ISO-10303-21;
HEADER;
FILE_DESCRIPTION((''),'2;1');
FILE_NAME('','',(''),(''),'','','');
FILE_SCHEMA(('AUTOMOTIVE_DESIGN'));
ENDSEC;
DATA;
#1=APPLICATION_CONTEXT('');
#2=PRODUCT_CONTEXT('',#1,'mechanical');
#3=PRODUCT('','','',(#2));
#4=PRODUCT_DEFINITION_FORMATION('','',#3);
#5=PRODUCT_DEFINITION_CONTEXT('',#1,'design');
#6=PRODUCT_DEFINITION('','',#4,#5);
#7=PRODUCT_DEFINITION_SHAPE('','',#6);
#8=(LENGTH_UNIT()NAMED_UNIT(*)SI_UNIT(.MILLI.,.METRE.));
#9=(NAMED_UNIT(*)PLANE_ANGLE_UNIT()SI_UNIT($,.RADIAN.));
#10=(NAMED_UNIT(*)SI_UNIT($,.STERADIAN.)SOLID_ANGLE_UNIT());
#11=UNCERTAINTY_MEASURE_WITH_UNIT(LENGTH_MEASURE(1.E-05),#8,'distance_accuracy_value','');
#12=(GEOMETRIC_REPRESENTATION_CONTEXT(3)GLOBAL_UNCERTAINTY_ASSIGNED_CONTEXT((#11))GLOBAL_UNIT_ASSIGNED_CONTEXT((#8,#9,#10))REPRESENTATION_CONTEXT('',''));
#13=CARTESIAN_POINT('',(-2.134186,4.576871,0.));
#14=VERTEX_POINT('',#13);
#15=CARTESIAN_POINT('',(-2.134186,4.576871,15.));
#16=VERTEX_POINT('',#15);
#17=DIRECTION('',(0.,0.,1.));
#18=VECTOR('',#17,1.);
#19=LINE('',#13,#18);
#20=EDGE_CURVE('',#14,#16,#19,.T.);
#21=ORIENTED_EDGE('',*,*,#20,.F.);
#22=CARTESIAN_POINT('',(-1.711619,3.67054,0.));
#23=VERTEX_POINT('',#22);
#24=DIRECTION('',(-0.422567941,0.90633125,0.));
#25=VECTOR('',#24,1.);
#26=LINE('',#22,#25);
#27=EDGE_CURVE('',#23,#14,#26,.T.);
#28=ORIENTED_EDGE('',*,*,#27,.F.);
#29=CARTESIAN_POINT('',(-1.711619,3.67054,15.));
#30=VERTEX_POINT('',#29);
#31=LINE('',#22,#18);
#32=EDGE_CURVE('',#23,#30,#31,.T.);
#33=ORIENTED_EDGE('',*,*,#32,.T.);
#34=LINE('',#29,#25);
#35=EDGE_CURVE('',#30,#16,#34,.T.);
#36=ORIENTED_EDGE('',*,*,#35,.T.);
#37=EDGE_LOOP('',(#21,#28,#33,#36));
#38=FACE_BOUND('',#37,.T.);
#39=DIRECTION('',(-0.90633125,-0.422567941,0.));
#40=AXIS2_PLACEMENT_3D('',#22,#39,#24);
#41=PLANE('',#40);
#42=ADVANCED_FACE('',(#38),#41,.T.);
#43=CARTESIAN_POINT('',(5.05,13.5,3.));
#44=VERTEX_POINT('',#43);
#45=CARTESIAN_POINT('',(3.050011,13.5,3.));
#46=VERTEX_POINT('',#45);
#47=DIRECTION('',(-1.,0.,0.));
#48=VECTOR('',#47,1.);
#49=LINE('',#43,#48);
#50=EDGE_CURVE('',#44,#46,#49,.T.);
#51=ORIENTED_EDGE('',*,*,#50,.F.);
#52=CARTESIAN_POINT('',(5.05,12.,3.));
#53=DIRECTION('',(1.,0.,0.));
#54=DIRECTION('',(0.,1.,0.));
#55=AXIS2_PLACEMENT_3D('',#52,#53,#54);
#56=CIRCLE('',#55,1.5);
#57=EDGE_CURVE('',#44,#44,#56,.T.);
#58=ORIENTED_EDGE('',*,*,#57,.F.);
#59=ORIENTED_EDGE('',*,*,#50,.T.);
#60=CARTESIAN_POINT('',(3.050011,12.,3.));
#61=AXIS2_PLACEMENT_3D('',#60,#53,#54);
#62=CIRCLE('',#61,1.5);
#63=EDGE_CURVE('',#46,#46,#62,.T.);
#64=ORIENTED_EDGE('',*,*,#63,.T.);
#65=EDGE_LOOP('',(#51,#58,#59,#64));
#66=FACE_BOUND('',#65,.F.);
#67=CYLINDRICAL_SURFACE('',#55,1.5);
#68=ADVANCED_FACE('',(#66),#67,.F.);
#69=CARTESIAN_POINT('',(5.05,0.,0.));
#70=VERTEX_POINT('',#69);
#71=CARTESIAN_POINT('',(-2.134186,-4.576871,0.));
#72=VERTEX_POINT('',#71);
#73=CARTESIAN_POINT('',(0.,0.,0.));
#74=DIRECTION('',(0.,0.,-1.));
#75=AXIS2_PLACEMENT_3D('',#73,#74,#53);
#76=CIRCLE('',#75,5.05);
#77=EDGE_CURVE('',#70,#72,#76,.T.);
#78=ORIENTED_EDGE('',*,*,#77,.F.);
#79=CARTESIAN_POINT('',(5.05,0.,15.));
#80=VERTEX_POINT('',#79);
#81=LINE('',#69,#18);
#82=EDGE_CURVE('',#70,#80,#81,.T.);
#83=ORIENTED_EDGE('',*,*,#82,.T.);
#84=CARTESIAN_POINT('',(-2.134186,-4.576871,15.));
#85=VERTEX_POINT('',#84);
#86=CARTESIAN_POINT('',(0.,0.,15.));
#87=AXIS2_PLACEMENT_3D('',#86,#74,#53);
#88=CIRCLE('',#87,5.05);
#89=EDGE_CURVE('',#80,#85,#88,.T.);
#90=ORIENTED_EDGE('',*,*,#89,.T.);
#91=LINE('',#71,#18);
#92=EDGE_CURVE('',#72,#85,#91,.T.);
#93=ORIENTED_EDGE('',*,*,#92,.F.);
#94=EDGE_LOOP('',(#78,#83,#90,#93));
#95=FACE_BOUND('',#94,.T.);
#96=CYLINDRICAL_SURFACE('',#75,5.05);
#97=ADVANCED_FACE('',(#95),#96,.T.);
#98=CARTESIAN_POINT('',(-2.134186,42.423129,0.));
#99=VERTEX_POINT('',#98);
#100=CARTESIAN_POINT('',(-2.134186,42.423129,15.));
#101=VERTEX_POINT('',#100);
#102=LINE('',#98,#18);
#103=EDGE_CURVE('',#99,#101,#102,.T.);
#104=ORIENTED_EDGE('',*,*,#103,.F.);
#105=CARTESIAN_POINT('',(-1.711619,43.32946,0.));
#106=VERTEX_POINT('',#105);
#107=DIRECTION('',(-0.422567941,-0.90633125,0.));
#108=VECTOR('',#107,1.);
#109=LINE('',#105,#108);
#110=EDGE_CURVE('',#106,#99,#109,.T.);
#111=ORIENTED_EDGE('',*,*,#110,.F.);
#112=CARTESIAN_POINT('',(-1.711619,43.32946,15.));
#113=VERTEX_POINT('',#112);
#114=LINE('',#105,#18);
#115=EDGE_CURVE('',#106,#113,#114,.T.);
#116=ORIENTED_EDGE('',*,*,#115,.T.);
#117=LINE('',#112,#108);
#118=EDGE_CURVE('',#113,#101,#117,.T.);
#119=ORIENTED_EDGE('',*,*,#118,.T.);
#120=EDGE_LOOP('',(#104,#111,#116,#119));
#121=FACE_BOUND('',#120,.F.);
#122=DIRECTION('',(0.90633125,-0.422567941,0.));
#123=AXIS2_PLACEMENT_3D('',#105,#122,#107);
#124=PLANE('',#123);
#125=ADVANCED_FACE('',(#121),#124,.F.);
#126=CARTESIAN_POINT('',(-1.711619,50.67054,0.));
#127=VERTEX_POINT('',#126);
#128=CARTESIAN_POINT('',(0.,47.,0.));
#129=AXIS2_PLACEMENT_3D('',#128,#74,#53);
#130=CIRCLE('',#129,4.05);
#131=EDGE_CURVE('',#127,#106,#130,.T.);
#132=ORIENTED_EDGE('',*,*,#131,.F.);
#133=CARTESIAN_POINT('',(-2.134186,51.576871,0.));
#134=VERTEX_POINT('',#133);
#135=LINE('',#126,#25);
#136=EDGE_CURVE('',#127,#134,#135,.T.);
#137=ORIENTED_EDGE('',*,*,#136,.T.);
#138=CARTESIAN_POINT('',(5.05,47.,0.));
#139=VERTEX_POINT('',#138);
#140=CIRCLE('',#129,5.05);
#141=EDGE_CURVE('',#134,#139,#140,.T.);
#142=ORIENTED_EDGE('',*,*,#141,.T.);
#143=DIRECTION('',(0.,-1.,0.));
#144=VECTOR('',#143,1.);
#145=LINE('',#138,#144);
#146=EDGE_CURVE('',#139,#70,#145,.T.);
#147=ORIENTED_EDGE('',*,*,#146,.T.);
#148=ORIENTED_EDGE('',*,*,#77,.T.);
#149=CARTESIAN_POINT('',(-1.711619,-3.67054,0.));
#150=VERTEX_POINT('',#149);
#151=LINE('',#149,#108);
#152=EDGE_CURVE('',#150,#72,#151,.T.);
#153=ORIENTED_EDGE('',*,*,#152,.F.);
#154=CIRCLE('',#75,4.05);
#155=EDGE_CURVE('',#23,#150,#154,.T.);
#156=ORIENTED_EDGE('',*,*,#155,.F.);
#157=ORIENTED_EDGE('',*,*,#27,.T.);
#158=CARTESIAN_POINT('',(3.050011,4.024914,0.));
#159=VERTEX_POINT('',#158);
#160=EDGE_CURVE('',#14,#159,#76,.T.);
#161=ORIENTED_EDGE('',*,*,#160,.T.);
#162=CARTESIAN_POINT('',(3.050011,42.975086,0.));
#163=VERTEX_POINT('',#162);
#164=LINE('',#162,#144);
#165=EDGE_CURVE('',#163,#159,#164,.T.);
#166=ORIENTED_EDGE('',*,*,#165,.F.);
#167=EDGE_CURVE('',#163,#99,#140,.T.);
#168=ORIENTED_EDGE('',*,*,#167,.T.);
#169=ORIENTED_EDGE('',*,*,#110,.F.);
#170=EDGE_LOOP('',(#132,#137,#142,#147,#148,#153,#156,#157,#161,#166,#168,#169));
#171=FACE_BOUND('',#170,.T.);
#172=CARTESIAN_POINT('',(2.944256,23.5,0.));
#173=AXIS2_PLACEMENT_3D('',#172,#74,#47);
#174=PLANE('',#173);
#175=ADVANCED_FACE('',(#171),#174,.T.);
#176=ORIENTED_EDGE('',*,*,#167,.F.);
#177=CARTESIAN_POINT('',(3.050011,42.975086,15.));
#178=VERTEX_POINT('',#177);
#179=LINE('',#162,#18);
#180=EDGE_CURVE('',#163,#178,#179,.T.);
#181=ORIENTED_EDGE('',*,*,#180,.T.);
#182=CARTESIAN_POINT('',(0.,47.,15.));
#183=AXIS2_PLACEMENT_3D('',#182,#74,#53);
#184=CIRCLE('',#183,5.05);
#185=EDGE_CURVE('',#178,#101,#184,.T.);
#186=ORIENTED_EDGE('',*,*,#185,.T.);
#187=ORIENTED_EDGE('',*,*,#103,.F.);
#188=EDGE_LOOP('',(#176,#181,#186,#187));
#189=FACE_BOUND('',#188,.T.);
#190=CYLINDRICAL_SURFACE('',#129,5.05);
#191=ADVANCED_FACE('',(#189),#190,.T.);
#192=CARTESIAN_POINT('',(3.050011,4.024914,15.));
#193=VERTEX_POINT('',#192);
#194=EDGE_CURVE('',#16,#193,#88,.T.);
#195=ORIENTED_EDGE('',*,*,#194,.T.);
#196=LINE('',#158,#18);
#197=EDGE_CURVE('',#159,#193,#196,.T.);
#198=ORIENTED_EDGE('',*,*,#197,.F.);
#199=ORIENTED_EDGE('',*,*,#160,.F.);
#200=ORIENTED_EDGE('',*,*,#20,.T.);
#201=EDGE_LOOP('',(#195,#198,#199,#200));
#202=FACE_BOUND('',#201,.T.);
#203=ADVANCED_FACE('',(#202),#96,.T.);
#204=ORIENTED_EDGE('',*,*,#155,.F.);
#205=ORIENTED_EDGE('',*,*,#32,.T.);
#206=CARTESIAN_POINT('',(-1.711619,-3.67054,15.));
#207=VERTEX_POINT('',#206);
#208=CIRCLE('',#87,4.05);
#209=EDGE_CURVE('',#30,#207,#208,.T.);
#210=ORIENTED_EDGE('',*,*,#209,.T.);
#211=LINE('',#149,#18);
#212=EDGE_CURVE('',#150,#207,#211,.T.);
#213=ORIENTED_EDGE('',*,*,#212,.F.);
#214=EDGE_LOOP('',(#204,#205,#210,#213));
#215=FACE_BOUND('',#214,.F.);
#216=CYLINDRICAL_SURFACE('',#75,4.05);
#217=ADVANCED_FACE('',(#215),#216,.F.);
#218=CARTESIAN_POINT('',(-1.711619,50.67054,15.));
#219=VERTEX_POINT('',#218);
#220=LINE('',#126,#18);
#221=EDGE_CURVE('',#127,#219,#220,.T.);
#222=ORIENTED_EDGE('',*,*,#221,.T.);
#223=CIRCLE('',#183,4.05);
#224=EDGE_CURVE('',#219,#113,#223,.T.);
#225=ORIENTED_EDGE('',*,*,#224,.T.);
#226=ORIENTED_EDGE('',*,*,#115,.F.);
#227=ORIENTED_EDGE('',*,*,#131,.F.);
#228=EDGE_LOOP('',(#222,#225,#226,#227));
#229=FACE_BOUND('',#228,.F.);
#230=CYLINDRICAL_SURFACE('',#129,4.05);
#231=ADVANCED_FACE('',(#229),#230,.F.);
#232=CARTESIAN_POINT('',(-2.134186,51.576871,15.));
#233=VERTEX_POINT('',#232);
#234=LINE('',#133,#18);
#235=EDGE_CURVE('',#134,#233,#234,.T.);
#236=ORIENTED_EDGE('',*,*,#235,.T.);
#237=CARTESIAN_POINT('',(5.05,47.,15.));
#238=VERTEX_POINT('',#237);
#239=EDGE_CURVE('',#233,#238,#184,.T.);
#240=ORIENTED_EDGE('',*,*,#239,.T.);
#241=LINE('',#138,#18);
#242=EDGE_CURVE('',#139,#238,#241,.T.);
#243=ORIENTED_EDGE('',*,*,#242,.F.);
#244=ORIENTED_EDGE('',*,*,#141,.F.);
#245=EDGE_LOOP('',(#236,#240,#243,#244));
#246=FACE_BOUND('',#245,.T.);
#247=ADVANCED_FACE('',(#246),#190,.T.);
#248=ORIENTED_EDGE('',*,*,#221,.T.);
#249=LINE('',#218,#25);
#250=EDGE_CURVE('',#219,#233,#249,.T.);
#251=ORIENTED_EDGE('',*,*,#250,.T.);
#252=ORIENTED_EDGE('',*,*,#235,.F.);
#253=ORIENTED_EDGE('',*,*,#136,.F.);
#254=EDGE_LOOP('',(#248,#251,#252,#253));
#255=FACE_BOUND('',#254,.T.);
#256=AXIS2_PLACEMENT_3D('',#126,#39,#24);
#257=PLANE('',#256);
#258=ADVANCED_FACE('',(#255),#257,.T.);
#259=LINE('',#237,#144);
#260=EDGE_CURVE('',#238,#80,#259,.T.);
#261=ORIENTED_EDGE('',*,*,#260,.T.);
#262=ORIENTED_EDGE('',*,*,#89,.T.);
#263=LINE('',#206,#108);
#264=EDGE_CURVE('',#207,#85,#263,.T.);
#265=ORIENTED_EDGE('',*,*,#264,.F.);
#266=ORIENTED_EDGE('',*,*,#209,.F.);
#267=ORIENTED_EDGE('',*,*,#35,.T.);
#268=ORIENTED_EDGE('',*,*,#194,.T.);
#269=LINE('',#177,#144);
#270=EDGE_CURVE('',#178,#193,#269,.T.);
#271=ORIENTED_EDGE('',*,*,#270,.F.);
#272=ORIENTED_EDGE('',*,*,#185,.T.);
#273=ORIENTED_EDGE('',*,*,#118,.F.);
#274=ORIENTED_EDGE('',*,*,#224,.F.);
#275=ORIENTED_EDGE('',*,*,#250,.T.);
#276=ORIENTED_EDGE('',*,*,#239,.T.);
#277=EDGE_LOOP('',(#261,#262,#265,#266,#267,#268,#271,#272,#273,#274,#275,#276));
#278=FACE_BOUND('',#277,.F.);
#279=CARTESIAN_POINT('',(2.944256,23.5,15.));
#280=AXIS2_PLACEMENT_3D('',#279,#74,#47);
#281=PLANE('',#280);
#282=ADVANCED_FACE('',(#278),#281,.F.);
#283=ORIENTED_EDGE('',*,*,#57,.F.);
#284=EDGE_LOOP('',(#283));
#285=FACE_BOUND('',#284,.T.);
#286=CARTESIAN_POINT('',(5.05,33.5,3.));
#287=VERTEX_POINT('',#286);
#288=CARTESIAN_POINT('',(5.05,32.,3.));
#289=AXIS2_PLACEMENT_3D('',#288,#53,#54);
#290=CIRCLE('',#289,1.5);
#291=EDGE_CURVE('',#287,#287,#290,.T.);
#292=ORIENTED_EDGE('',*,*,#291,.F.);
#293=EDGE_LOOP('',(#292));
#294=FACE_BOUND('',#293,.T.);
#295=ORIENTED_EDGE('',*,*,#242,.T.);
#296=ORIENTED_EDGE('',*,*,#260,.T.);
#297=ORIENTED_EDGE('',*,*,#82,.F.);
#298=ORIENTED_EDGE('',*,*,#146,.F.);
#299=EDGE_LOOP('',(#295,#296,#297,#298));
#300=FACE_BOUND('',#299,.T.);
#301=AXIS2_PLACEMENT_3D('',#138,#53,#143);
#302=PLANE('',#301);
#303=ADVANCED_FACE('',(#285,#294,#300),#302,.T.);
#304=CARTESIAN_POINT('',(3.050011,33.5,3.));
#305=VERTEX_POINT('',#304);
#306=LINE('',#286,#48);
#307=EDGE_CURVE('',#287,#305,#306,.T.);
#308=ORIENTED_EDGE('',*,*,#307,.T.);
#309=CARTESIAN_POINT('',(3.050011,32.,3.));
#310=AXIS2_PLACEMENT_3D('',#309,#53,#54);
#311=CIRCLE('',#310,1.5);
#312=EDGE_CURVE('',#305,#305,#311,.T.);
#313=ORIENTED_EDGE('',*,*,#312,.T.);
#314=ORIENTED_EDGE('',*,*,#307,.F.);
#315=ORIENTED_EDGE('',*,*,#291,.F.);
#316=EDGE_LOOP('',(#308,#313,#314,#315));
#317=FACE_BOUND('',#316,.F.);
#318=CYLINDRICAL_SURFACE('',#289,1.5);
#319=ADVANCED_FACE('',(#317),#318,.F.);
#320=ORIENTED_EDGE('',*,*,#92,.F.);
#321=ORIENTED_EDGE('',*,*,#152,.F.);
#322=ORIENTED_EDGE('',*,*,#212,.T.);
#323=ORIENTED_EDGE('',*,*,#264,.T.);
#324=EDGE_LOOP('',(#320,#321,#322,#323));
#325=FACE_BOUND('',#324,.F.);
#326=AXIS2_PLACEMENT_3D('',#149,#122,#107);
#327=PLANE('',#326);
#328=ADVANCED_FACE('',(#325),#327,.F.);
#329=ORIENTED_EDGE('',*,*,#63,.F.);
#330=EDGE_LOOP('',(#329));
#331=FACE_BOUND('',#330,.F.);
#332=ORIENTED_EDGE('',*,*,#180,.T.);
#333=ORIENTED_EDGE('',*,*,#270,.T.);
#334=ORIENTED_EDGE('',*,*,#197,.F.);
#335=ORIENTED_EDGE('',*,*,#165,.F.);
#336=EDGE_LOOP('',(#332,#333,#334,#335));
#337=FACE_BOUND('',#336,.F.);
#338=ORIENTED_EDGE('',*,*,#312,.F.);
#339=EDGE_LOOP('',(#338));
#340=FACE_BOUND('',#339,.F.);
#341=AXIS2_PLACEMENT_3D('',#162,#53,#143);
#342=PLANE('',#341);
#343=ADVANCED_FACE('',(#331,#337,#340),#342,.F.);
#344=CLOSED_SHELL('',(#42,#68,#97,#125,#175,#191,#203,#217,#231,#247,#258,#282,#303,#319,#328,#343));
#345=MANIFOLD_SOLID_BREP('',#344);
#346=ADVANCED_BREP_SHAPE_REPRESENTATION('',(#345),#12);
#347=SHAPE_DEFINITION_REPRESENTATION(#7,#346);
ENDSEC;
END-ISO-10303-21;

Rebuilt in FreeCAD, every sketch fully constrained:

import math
import FreeCAD as App
import Part
import Sketcher

doc = App.newDocument("Part")
body = doc.addObject("PartDesign::Body", "Body")

# Sketch on XY plane
sketch1 = body.newObject("Sketcher::SketchObject", "Sketch")
sketch1.AttachmentSupport = (doc.getObject("XY_Plane"), [""])
sketch1.MapMode = "FlatFace"
sketch1.addGeometry([
    Part.ArcOfCircle(Part.Circle(App.Vector(0, 47, 0), App.Vector(0, 0, 1), 5.050032), math.radians(-114.999552), math.radians(-52.845777)),  # 0
    Part.LineSegment(App.Vector(3.05, 42.9751, 0), App.Vector(3.05, 4.0249, 0)),  # 1
    Part.ArcOfCircle(Part.Circle(App.Vector(0, 0, 0), App.Vector(0, 0, 1), 5.05), math.radians(52.845777), math.radians(114.999552)),  # 2
    Part.LineSegment(App.Vector(-2.1342, 4.5769, 0), App.Vector(-1.7116, 3.6705, 0)),  # 3
    Part.ArcOfCircle(Part.Circle(App.Vector(0, 0, 0), App.Vector(0, 0, 1), 4.049956), math.radians(-115.000227), math.radians(115.000227)),  # 4
    Part.LineSegment(App.Vector(-1.7116, -3.6705, 0), App.Vector(-2.1342, -4.5769, 0)),  # 5
    Part.ArcOfCircle(Part.Circle(App.Vector(0, 0, 0), App.Vector(0, 0, 1), 5.050032), math.radians(-114.999552), math.radians(0)),  # 6
    Part.LineSegment(App.Vector(5.05, 0, 0), App.Vector(5.05, 47, 0)),  # 7
    Part.ArcOfCircle(Part.Circle(App.Vector(0, 47, 0), App.Vector(0, 0, 1), 5.049982), math.radians(0), math.radians(114.999552)),  # 8
    Part.LineSegment(App.Vector(-2.1342, 51.5769, 0), App.Vector(-1.7116, 50.6705, 0)),  # 9
    Part.ArcOfCircle(Part.Circle(App.Vector(0, 47, 0), App.Vector(0, 0, 1), 4.049956), math.radians(-115.000227), math.radians(115.000227)),  # 10
    Part.LineSegment(App.Vector(-1.7116, 43.3295, 0), App.Vector(-2.1342, 42.4231, 0)),  # 11
], False)
sketch1.addConstraint([
    Sketcher.Constraint("Coincident", 0, 2, 1, 1),
    Sketcher.Constraint("Coincident", 1, 2, 2, 1),
    Sketcher.Constraint("Coincident", 2, 2, 3, 1),
    Sketcher.Constraint("Coincident", 3, 2, 4, 2),
    Sketcher.Constraint("Coincident", 4, 1, 5, 1),
    Sketcher.Constraint("Coincident", 5, 2, 6, 1),
    Sketcher.Constraint("Tangent", 6, 2, 7, 1),
    Sketcher.Constraint("Tangent", 7, 2, 8, 1),
    Sketcher.Constraint("Coincident", 8, 2, 9, 1),
    Sketcher.Constraint("Coincident", 9, 2, 10, 2),
    Sketcher.Constraint("Coincident", 10, 1, 11, 1),
    Sketcher.Constraint("Coincident", 11, 2, 0, 1),
    Sketcher.Constraint("Vertical", 1),
    Sketcher.Constraint("Vertical", 7),
    Sketcher.Constraint("Coincident", 2, 3, -1, 1),
    Sketcher.Constraint("Coincident", 4, 3, -1, 1),
    Sketcher.Constraint("Coincident", 6, 3, -1, 1),
    Sketcher.Constraint("Coincident", 8, 3, 0, 3),
    Sketcher.Constraint("Coincident", 10, 3, 0, 3),
    Sketcher.Constraint("Equal", 0, 2),
    Sketcher.Constraint("Equal", 2, 6),
    Sketcher.Constraint("Equal", 6, 8),
    Sketcher.Constraint("Equal", 4, 10),
    Sketcher.Constraint("Parallel", 3, 9),
    Sketcher.Constraint("Parallel", 5, 11),
    Sketcher.Constraint("Vertical", 3, 2, 4, 1),
    Sketcher.Constraint("Vertical", 2, 2, 5, 2),
    Sketcher.Constraint("Vertical", 5, 2, 8, 2),
    Sketcher.Constraint("Vertical", 9, 2, 10, 1),
    Sketcher.Constraint("DistanceY", 7, 1, 7, 2, 47.0),
    Sketcher.Constraint("Radius", 0, 5.05),
    Sketcher.Constraint("Radius", 4, 4.05),
    Sketcher.Constraint("DistanceX", 1, 2, 6, 2, 2.0),
    Sketcher.Constraint("DistanceY", 5, 2, -1, 1, 4.577),
    Sketcher.Constraint("DistanceY", 4, 1, 3, 2, 7.341),
])
pad1 = body.newObject("PartDesign::Pad", "Pad")
pad1.Profile = sketch1
pad1.Length = 15

# Sketch on YZ plane
sketch2 = body.newObject("Sketcher::SketchObject", "Sketch001")
sketch2.AttachmentSupport = (doc.getObject("YZ_Plane"), [""])
sketch2.MapMode = "FlatFace"
sketch2.AttachmentOffset = App.Placement(App.Vector(0, 0, 5.05), App.Rotation())
sketch2.addGeometry([
    Part.Circle(App.Vector(32, 3, 0), App.Vector(0, 0, 1), 1.5),
    Part.Circle(App.Vector(12, 3, 0), App.Vector(0, 0, 1), 1.5),
], False)
sketch2.addConstraint([
    Sketcher.Constraint("Equal", 0, 1),
    Sketcher.Constraint("Horizontal", 0, 3, 1, 3),
    Sketcher.Constraint("Diameter", 0, 3.0),
    Sketcher.Constraint("DistanceX", -1, 1, 0, 3, 32.0),
    Sketcher.Constraint("DistanceY", -1, 1, 0, 3, 3.0),
    Sketcher.Constraint("DistanceX", -1, 1, 1, 3, 12.0),
])
pocket1 = body.newObject("PartDesign::Pocket", "Pocket")
pocket1.Profile = sketch2
pocket1.Length = 19.0191
pocket1.Midplane = True

doc.recompute()
